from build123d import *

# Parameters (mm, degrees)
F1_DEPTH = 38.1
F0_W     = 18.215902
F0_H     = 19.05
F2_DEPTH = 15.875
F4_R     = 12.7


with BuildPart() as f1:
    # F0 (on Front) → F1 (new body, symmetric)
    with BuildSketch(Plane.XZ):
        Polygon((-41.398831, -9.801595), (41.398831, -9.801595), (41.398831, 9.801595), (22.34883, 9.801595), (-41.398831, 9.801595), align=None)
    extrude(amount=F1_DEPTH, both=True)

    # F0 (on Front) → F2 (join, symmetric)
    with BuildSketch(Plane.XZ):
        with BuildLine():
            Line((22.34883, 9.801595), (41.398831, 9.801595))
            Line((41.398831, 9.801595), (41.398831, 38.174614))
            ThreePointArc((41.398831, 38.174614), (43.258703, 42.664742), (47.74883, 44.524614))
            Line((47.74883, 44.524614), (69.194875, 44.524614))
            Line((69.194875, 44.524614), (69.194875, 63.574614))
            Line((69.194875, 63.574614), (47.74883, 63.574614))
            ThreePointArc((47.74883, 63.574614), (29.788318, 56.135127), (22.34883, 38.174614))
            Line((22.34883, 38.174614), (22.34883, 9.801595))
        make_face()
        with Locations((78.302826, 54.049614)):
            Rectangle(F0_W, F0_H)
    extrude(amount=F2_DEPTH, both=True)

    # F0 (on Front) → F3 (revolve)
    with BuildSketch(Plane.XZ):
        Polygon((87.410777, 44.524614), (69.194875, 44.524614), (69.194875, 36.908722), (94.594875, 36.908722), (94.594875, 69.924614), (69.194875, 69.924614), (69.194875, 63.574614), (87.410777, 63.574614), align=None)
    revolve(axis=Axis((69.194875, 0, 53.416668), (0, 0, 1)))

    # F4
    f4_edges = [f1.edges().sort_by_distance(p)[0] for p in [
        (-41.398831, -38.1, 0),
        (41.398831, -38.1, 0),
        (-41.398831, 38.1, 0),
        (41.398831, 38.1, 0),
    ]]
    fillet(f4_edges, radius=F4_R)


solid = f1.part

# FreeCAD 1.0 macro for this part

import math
import FreeCAD as App
import Part
import Sketcher

V = App.Vector
Q = App.Units.Quantity


def edges_at(feature, points):
    """Names of the edges that pass closest to the given points."""
    edges = feature.Shape.Edges
    near = lambda p: min(range(len(edges)), key=lambda i: edges[i].distToShape(Part.Vertex(*p))[0])
    return sorted({f"Edge{near(p) + 1}" for p in points})

doc = App.newDocument("Part")
body = doc.addObject("PartDesign::Body", "Body")

# Sketch on XZ plane
sketch1 = body.newObject("Sketcher::SketchObject", "Sketch")
sketch1.AttachmentSupport = (doc.getObject("XZ_Plane"), [""])
sketch1.MapMode = "FlatFace"
sketch1.addGeometry([
    Part.LineSegment(V(-41, -10, 0), V(41, -10, 0)),
    Part.LineSegment(V(41, -10, 0), V(41, 10, 0)),
    Part.LineSegment(V(41, 10, 0), V(-41, 10, 0)),
    Part.LineSegment(V(-41, 10, 0), V(-41, -10, 0)),
], False)
sketch1.addConstraint([
    Sketcher.Constraint("Coincident", 0, 2, 1, 1),
    Sketcher.Constraint("Coincident", 1, 2, 2, 1),
    Sketcher.Constraint("Coincident", 2, 2, 3, 1),
    Sketcher.Constraint("Coincident", 3, 2, 0, 1),
    Sketcher.Constraint("Horizontal", 0),
    Sketcher.Constraint("Vertical", 1),
    Sketcher.Constraint("Horizontal", 2),
    Sketcher.Constraint("Vertical", 3),
    Sketcher.Constraint("Symmetric", 0, 2, 2, 2, -1, 1),
    Sketcher.Constraint("DistanceY", 1, 1, 1, 2, Q("19.60319 mm")),
    Sketcher.Constraint("DistanceX", 0, 1, 0, 2, Q("82.797662 mm")),
])
pad1 = body.newObject("PartDesign::Pad", "Pad")
pad1.Profile = sketch1
pad1.Length = Q("3 in")
pad1.Midplane = True

# Sketch on XZ plane
sketch2 = body.newObject("Sketcher::SketchObject", "Sketch001")
sketch2.AttachmentSupport = (doc.getObject("XZ_Plane"), [""])
sketch2.MapMode = "FlatFace"
sketch2.addGeometry([
    Part.LineSegment(V(22, 10, 0), V(41, 10, 0)),  # 0
    Part.LineSegment(V(41, 10, 0), V(41, 38, 0)),  # 1
    Part.ArcOfCircle(Part.Circle(V(48, 38, 0), V(0, 0, 1), 6), math.radians(90), math.radians(180)),  # 2
    Part.LineSegment(V(48, 45, 0), V(87, 45, 0)),  # 3
    Part.LineSegment(V(87, 45, 0), V(87, 64, 0)),  # 4
    Part.LineSegment(V(87, 64, 0), V(48, 64, 0)),  # 5
    Part.ArcOfCircle(Part.Circle(V(48, 38, 0), V(0, 0, 1), 25), math.radians(90), math.radians(180)),  # 6
    Part.LineSegment(V(22, 38, 0), V(22, 10, 0)),  # 7
], False)
sketch2.addConstraint([
    Sketcher.Constraint("Coincident", 0, 2, 1, 1),
    Sketcher.Constraint("Tangent", 1, 2, 2, 2),
    Sketcher.Constraint("Tangent", 2, 1, 3, 1),
    Sketcher.Constraint("Coincident", 3, 2, 4, 1),
    Sketcher.Constraint("Coincident", 4, 2, 5, 1),
    Sketcher.Constraint("Tangent", 5, 2, 6, 1),
    Sketcher.Constraint("Tangent", 6, 2, 7, 1),
    Sketcher.Constraint("Coincident", 7, 2, 0, 1),
    Sketcher.Constraint("Horizontal", 0),
    Sketcher.Constraint("Vertical", 1),
    Sketcher.Constraint("Horizontal", 3),
    Sketcher.Constraint("Vertical", 4),
    Sketcher.Constraint("Horizontal", 5),
    Sketcher.Constraint("Vertical", 7),
    Sketcher.Constraint("Coincident", 6, 3, 2, 3),
    Sketcher.Constraint("Radius", 6, Q("1 in")),
    Sketcher.Constraint("Radius", 2, Q("0.25 in")),
    Sketcher.Constraint("DistanceY", 1, 1, 1, 2, Q("28.373019 mm")),
    Sketcher.Constraint("DistanceX", 3, 1, 3, 2, Q("39.661947 mm")),
    Sketcher.Constraint("DistanceX", -1, 1, 2, 3, Q("47.748831 mm")),
    Sketcher.Constraint("DistanceY", -1, 1, 2, 3, Q("38.174614 mm")),
])
pad2 = body.newObject("PartDesign::Pad", "Pad001")
pad2.Profile = sketch2
pad2.Length = Q("1.25 in")
pad2.Midplane = True

# Sketch on XZ plane
sketch3 = body.newObject("Sketcher::SketchObject", "Sketch002")
sketch3.AttachmentSupport = (doc.getObject("XZ_Plane"), [""])
sketch3.MapMode = "FlatFace"
sketch3.addGeometry([
    Part.LineSegment(V(87, 45, 0), V(69, 45, 0)),  # 0
    Part.LineSegment(V(69, 45, 0), V(69, 37, 0)),  # 1
    Part.LineSegment(V(69, 37, 0), V(95, 37, 0)),  # 2
    Part.LineSegment(V(95, 37, 0), V(95, 70, 0)),  # 3
    Part.LineSegment(V(95, 70, 0), V(69, 70, 0)),  # 4
    Part.LineSegment(V(69, 70, 0), V(69, 64, 0)),  # 5
    Part.LineSegment(V(69, 64, 0), V(87, 64, 0)),  # 6
    Part.LineSegment(V(87, 64, 0), V(87, 45, 0)),  # 7
], False)
sketch3.addGeometry(Part.LineSegment(V(69, 37, 0), V(69, 70, 0)), True)  # axis
sketch3.addConstraint([
    Sketcher.Constraint("Coincident", 0, 2, 1, 1),
    Sketcher.Constraint("Coincident", 1, 2, 2, 1),
    Sketcher.Constraint("Coincident", 2, 2, 3, 1),
    Sketcher.Constraint("Coincident", 3, 2, 4, 1),
    Sketcher.Constraint("Coincident", 4, 2, 5, 1),
    Sketcher.Constraint("Coincident", 5, 2, 6, 1),
    Sketcher.Constraint("Coincident", 6, 2, 7, 1),
    Sketcher.Constraint("Coincident", 7, 2, 0, 1),
    Sketcher.Constraint("Horizontal", 0),
    Sketcher.Constraint("Vertical", 1),
    Sketcher.Constraint("Horizontal", 2),
    Sketcher.Constraint("Vertical", 3),
    Sketcher.Constraint("Horizontal", 4),
    Sketcher.Constraint("Vertical", 5),
    Sketcher.Constraint("Horizontal", 6),
    Sketcher.Constraint("Vertical", 7),
    Sketcher.Constraint("Vertical", 8),
    Sketcher.Constraint("Coincident", 8, 1, 1, 2),
    Sketcher.Constraint("Coincident", 8, 2, 4, 2),
    Sketcher.Constraint("DistanceX", 2, 1, 2, 2, Q("1 in")),
    Sketcher.Constraint("DistanceY", 0, 2, 3, 2, Q("1 in")),
    Sketcher.Constraint("DistanceY", 5, 2, 5, 1, Q("0.25 in")),
    Sketcher.Constraint("DistanceX", 0, 2, 0, 1, Q("18.215902 mm")),
    Sketcher.Constraint("DistanceY", 1, 2, 1, 1, Q("7.615892 mm")),
    Sketcher.Constraint("DistanceY", -1, 1, 1, 2, Q("36.908722 mm")),
    Sketcher.Constraint("DistanceX", -1, 1, 0, 2, Q("69.194875 mm")),
])
revolution = body.newObject("PartDesign::Revolution", "Revolution")
revolution.Profile = sketch3
revolution.ReferenceAxis = (sketch3, ["Axis0"])
revolution.Angle = 360
doc.recompute()

fillet = body.newObject("PartDesign::Fillet", "Fillet")
fillet.Base = (revolution, edges_at(revolution, [
    (-41.399, -38.1, 0),
    (41.399, -38.1, 0),
    (-41.399, 38.1, 0),
    (41.399, 38.1, 0),
]))
fillet.Radius = Q("0.5 in")

doc.recompute()
